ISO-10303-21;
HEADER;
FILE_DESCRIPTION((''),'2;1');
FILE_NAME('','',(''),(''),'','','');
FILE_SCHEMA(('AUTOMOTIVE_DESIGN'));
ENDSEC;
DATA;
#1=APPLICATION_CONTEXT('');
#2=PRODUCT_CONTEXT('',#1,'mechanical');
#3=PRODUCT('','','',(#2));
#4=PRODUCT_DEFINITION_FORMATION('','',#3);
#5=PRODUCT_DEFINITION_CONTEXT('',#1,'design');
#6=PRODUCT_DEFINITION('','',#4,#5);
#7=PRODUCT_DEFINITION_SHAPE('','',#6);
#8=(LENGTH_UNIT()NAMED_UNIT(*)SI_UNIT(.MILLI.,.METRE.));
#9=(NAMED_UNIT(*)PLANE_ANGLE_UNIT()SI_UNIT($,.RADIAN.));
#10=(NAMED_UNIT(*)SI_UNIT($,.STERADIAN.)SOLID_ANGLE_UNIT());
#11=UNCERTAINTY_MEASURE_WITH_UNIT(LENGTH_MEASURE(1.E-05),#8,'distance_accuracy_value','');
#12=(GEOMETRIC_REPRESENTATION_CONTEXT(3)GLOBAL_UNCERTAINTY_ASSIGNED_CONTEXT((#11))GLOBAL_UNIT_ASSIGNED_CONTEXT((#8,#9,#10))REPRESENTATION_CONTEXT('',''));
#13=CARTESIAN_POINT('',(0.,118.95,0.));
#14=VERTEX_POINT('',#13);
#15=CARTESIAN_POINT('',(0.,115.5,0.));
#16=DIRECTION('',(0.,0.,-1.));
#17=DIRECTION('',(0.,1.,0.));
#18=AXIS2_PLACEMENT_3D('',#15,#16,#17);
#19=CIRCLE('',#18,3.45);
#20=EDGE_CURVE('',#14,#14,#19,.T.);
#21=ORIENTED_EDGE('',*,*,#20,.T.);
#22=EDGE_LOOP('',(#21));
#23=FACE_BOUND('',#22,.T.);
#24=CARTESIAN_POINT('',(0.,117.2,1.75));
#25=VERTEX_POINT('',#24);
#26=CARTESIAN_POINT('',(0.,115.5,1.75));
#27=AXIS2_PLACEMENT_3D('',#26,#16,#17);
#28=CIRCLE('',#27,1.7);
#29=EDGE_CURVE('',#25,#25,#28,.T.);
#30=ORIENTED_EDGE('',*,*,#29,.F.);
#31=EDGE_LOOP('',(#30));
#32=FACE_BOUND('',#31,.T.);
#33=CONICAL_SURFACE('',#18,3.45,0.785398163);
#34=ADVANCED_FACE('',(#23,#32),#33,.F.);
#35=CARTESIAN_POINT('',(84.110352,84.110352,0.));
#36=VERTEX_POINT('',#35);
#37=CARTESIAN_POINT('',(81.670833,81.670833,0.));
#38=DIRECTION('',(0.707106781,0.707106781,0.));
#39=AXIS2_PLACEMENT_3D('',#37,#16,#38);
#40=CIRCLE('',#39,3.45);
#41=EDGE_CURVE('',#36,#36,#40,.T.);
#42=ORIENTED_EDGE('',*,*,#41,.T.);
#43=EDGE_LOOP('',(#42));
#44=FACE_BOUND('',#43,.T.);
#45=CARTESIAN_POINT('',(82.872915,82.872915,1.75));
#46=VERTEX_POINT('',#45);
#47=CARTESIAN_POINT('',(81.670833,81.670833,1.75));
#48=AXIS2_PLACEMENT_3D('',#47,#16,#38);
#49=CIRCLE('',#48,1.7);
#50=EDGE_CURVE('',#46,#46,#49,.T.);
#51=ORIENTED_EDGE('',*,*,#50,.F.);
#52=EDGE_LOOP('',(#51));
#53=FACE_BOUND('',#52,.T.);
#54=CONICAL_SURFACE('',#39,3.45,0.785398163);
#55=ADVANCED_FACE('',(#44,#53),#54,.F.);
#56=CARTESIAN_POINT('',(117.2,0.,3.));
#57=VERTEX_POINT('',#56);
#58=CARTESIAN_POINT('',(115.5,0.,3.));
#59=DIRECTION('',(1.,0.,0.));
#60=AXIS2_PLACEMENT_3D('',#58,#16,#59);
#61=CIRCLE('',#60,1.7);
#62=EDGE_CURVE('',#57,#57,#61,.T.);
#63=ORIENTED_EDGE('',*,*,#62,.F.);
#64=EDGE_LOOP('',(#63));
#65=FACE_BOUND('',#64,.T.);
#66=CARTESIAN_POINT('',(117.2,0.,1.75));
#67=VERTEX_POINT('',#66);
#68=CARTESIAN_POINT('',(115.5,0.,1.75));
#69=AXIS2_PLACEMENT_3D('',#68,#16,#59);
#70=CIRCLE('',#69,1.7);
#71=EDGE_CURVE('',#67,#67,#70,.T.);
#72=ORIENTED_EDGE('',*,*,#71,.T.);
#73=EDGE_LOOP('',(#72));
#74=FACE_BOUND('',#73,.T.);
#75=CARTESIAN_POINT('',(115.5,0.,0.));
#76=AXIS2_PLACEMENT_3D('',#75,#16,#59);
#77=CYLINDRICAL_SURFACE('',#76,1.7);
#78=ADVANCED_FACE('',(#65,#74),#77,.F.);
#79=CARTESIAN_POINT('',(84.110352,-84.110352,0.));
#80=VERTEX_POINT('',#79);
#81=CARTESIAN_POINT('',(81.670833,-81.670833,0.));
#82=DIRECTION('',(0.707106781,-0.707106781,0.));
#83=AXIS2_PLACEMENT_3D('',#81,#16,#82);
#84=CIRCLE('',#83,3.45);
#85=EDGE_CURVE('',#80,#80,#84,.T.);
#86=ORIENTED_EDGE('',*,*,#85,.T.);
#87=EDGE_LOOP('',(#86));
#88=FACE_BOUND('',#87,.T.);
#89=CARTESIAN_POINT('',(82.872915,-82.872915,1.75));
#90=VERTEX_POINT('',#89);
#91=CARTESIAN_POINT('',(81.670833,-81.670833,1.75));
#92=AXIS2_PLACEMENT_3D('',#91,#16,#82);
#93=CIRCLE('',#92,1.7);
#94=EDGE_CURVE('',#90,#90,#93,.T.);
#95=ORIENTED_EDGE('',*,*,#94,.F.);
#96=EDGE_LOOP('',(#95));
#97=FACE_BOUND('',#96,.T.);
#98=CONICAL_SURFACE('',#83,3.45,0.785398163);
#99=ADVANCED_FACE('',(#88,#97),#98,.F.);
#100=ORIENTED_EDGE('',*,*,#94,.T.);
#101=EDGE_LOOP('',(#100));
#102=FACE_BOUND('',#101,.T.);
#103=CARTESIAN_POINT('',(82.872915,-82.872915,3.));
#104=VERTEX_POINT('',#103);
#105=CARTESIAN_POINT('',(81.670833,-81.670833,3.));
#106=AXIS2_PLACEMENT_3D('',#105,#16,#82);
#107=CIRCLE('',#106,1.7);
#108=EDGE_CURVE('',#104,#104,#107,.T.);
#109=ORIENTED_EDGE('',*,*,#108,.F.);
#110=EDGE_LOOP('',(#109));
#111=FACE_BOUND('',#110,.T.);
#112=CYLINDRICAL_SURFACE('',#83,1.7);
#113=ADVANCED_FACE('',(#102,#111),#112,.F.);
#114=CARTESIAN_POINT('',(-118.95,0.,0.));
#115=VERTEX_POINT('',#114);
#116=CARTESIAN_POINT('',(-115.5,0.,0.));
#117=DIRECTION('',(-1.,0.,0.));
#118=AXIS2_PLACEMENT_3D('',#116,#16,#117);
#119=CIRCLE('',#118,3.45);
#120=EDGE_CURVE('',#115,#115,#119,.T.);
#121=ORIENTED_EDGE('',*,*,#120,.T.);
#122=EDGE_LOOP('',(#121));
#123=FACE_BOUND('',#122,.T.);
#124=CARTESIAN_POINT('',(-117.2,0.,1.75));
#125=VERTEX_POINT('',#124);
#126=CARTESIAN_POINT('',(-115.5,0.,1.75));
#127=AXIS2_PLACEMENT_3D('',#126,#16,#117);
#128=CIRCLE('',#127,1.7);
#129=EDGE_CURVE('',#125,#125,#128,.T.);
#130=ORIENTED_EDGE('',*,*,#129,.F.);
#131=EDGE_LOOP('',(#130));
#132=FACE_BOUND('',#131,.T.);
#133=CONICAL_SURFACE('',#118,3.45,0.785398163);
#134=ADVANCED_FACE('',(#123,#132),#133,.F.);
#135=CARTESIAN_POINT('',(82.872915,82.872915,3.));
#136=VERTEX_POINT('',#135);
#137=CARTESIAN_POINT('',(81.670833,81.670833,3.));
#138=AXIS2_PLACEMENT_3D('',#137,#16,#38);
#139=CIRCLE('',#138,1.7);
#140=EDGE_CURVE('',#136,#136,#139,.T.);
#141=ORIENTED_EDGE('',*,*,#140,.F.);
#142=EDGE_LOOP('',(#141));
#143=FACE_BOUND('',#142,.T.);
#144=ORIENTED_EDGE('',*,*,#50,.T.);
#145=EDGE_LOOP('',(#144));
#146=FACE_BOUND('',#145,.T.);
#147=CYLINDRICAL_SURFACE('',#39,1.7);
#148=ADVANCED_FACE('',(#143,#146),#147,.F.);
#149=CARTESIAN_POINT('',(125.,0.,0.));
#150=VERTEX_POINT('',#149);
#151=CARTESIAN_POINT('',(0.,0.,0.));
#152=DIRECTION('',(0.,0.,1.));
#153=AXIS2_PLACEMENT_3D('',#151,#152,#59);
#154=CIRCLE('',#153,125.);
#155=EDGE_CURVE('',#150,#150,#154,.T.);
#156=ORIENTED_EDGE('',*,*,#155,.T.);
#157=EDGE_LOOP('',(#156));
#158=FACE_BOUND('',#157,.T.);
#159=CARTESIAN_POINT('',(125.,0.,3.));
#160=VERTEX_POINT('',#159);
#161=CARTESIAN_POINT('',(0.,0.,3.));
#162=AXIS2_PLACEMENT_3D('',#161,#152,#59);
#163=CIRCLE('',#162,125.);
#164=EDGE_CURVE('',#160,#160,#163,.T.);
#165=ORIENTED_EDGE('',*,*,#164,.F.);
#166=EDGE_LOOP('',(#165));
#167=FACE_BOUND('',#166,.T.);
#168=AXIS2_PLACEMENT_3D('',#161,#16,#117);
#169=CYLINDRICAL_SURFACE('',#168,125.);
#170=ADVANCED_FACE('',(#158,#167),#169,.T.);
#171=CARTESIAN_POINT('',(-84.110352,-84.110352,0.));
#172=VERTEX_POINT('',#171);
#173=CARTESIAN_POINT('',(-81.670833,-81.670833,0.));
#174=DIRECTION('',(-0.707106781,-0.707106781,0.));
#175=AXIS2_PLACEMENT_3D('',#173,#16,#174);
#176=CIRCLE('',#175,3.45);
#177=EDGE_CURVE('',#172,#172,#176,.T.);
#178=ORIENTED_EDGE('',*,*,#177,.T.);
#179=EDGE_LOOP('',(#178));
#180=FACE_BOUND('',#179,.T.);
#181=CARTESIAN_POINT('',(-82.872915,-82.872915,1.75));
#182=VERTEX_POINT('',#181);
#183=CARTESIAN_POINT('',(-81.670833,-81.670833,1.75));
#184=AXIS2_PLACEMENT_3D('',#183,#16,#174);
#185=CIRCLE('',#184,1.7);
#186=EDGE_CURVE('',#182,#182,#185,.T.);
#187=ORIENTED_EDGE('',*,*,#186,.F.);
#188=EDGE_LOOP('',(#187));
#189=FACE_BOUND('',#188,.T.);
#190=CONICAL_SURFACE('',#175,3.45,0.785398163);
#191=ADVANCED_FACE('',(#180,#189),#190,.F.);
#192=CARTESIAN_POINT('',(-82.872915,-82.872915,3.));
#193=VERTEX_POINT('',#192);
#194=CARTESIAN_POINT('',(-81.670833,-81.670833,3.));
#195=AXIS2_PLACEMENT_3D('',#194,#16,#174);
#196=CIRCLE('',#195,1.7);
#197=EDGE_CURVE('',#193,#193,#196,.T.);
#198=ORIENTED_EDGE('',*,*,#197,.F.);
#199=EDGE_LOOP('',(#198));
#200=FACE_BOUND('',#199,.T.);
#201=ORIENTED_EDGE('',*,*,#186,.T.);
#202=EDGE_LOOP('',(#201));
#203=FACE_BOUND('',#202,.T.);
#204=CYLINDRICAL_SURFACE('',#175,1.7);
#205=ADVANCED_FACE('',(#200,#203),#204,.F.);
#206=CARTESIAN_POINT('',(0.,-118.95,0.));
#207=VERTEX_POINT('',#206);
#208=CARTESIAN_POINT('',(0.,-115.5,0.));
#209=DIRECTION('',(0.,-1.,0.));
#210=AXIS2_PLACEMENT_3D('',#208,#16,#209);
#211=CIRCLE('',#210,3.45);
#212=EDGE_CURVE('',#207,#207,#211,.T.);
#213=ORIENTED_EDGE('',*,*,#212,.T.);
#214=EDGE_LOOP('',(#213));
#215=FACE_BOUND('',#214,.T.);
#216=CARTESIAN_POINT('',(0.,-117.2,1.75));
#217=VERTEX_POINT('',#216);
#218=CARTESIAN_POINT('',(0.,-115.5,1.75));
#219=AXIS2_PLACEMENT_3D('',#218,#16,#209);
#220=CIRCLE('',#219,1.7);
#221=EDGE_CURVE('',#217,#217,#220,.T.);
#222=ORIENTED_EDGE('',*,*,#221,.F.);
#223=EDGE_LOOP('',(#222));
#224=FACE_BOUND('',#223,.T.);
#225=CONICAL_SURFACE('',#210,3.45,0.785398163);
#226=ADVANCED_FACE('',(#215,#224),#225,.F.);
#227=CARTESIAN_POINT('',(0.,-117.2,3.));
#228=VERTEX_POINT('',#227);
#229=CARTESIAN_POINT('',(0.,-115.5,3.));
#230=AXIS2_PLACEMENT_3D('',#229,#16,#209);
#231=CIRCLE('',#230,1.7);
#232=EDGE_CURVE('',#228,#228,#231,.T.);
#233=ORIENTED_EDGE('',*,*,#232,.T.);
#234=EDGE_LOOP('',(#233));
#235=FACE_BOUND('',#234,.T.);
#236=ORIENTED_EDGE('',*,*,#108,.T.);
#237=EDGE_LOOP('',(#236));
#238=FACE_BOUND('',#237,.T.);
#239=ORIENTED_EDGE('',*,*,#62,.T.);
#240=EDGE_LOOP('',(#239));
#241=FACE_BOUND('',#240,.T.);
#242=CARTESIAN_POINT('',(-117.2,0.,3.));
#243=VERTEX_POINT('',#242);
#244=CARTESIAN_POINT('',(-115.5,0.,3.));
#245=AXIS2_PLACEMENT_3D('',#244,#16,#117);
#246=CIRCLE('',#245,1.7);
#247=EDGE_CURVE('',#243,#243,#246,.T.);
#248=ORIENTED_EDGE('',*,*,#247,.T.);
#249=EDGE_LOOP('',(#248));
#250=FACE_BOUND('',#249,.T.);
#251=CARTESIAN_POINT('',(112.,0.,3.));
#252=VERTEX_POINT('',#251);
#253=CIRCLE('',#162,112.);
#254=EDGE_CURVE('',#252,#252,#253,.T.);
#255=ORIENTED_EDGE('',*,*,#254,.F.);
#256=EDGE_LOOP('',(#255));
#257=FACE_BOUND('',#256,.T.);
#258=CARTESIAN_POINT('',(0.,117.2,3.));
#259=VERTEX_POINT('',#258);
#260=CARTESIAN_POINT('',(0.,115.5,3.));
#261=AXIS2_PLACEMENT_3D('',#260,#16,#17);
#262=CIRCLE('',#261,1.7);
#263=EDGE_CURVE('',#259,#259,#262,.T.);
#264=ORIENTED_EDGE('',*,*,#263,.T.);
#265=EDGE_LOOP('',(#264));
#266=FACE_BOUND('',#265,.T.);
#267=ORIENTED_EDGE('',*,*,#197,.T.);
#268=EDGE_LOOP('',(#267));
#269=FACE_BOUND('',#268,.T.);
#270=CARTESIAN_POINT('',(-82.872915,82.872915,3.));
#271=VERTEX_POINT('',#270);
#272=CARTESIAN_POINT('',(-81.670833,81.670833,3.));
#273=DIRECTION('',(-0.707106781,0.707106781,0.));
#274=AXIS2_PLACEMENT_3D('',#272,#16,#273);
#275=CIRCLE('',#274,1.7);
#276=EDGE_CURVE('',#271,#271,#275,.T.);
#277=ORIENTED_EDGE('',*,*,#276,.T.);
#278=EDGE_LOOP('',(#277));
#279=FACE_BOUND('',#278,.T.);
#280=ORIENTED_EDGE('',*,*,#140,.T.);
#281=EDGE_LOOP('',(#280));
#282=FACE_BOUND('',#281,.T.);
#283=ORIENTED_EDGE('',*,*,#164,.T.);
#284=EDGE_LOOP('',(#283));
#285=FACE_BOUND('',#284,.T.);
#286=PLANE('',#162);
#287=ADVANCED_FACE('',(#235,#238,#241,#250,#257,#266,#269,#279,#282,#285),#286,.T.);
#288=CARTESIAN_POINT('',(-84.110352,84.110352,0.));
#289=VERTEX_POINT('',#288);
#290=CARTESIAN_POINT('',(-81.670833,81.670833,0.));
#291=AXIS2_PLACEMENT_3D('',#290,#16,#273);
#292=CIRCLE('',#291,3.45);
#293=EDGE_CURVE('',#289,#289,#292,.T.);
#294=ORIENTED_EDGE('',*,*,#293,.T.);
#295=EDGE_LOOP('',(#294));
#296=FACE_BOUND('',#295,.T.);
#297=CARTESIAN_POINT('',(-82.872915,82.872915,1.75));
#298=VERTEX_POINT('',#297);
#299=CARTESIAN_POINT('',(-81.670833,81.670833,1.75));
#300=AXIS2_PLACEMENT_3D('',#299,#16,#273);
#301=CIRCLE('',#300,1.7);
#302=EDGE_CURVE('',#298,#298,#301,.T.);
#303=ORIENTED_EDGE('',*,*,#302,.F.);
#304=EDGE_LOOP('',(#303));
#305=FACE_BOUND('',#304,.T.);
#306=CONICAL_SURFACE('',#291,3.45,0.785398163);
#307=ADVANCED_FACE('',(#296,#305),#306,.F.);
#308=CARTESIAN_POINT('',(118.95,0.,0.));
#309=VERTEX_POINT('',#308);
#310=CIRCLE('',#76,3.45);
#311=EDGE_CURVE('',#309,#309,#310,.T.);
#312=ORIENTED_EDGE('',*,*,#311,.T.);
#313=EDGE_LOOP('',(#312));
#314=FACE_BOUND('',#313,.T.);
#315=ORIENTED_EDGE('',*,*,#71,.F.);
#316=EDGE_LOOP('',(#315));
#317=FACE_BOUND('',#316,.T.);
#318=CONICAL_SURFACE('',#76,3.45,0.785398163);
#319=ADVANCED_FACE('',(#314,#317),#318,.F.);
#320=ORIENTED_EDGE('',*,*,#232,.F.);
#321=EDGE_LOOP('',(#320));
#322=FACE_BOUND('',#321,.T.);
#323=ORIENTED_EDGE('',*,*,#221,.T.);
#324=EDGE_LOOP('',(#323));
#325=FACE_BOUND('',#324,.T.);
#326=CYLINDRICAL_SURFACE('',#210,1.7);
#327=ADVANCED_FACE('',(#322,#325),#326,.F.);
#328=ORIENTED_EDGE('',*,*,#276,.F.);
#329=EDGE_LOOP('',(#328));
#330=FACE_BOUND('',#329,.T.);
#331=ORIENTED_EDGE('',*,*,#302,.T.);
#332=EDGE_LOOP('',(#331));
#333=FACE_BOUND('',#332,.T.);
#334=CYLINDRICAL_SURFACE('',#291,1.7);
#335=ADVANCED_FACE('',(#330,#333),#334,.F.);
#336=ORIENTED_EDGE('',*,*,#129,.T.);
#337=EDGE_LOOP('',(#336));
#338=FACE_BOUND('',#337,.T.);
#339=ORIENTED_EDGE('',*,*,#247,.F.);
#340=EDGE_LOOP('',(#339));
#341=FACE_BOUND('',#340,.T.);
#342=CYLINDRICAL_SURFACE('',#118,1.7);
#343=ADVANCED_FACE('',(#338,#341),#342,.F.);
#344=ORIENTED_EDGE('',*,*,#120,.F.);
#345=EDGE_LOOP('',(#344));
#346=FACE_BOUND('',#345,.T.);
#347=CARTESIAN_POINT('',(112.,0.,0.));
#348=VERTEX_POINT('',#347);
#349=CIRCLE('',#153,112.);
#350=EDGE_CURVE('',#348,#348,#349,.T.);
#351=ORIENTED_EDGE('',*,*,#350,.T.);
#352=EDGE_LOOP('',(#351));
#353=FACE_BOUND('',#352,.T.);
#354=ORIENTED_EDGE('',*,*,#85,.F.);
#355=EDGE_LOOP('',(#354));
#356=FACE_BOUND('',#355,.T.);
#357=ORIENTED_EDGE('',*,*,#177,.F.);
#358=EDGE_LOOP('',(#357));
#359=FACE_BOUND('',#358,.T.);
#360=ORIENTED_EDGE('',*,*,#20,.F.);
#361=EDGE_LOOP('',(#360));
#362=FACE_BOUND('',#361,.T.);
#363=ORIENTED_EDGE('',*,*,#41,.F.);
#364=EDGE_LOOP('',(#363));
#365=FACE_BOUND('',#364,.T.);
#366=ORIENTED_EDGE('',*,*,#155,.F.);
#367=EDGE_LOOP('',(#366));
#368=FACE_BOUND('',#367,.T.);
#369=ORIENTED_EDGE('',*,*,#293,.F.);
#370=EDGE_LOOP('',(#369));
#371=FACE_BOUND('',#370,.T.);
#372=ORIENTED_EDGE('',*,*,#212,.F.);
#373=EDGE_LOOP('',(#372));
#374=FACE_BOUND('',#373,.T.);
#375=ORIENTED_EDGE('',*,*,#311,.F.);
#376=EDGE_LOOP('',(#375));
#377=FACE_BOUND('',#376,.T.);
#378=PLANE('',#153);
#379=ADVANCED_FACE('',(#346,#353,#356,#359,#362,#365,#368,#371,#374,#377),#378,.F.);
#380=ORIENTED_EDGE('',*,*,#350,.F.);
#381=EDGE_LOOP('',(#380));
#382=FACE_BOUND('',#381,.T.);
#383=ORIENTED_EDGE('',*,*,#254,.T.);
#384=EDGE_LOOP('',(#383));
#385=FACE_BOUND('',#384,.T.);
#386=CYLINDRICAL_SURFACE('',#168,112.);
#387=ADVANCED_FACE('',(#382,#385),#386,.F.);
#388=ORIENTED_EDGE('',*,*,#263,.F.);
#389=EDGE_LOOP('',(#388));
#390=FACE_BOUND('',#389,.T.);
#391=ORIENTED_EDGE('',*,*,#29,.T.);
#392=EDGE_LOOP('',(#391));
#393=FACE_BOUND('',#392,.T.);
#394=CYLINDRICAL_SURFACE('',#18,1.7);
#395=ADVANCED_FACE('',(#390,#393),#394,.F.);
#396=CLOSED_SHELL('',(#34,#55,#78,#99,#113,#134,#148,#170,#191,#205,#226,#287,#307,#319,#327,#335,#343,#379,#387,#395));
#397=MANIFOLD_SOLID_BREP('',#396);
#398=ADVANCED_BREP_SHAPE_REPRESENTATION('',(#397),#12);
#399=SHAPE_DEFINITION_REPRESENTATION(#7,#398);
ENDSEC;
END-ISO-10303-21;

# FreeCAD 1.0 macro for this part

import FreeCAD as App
import Part
import Sketcher
Q = App.Units.Quantity


def add_polygon(sketch, points):
    """Adds a closed chain of lines whose ends are joined by coincident constraints."""
    first, n = sketch.GeometryCount, len(points)
    for a, b in zip(points, points[1:] + points[:1]):
        sketch.addGeometry(Part.LineSegment(App.Vector(*a, 0), App.Vector(*b, 0)), False)
    for i in range(n):
        sketch.addConstraint(Sketcher.Constraint("Coincident", first + i, 2, first + (i + 1) % n, 1))

doc = App.newDocument("Part")
body = doc.addObject("PartDesign::Body", "Body")

# Sketch on XY plane
sketch1 = doc.addObject("Sketcher::SketchObject", "Sketch")
body.addObject(sketch1)
sketch1.AttachmentSupport = (doc.XY_Plane, [""])
sketch1.MapMode = "FlatFace"
sketch1.addGeometry(Part.Circle(App.Vector(0, 0, 0), App.Vector(0, 0, 1), 125), False)
sketch1.addGeometry(Part.Circle(App.Vector(0, 0, 0), App.Vector(0, 0, 1), 112), False)
sketch1.addConstraint(Sketcher.Constraint("Coincident", 0, 3, -1, 1))
sketch1.addConstraint(Sketcher.Constraint("Coincident", 1, 3, -1, 1))
sketch1.addConstraint(Sketcher.Constraint("Diameter", 0, Q("250 mm")))
sketch1.addConstraint(Sketcher.Constraint("Diameter", 1, Q("224 mm")))
pad1 = doc.addObject("PartDesign::Pad", "Pad")
body.addObject(pad1)
pad1.Profile = sketch1
pad1.Length = 3

# Sketch on YZ plane
sketch2 = doc.addObject("Sketcher::SketchObject", "Sketch001")
body.addObject(sketch2)
sketch2.AttachmentSupport = (doc.YZ_Plane, [""])
sketch2.MapMode = "FlatFace"
sketch2.AttachmentOffset = App.Placement(App.Vector(0, 0, -115.5), App.Rotation())
add_polygon(sketch2, [(0, 3), (0, 0), (3.5, 0), (1.7, 1.8), (1.7, 3)])  # lines 0-4
sketch2.addConstraint(Sketcher.Constraint("Vertical", 0))
sketch2.addConstraint(Sketcher.Constraint("Horizontal", 1))
sketch2.addConstraint(Sketcher.Constraint("Vertical", 3))
sketch2.addConstraint(Sketcher.Constraint("Horizontal", 4))
sketch2.addConstraint(Sketcher.Constraint("Coincident", 0, 2, -1, 1))
sketch2.addConstraint(Sketcher.Constraint("DistanceY", 0, 2, 0, 1, Q("3 mm")))
sketch2.addConstraint(Sketcher.Constraint("Angle", 2, Q("135 deg")))
sketch2.addConstraint(Sketcher.Constraint("DistanceX", 4, 2, 4, 1, Q("1.7 mm")))
sketch2.addConstraint(Sketcher.Constraint("DistanceX", 1, 1, 1, 2, Q("3.45 mm")))
groove = doc.addObject("PartDesign::Groove", "Groove")
body.addObject(groove)
groove.Profile = sketch2
groove.ReferenceAxis = (sketch2, ["V_Axis"])
groove.Angle = 360
doc.recompute()

polarpattern = doc.addObject("PartDesign::PolarPattern", "PolarPattern")
body.addObject(polarpattern)
polarpattern.Originals = [groove]
polarpattern.Axis = (doc.Z_Axis, [""])
polarpattern.Angle = 360
polarpattern.Occurrences = 8
body.Tip = polarpattern

doc.recompute()
